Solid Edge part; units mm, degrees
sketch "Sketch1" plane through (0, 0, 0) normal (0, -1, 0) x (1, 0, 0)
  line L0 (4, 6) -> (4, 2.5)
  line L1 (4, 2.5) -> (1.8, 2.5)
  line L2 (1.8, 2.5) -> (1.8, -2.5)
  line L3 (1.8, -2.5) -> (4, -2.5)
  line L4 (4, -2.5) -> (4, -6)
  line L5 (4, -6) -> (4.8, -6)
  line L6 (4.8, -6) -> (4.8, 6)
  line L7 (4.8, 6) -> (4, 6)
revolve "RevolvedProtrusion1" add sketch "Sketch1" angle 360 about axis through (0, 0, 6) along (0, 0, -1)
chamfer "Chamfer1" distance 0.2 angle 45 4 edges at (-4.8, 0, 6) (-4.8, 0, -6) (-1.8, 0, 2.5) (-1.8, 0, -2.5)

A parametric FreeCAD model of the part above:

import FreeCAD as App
import Part
import Sketcher
from FreeCAD import Vector
Q = App.Units.Quantity


def edges_at(feature, points):
    """Names of the edges that pass closest to the given points."""
    edges = feature.Shape.Edges
    near = lambda p: min(range(len(edges)), key=lambda i: edges[i].distToShape(Part.Vertex(*p))[0])
    return sorted({f"Edge{near(p) + 1}" for p in points})


def add_polygon(sketch, points):
    """Adds a closed chain of lines whose ends are joined by coincident constraints."""
    first, n = sketch.GeometryCount, len(points)
    for a, b in zip(points, points[1:] + points[:1]):
        sketch.addGeometry(Part.LineSegment(App.Vector(*a, 0), App.Vector(*b, 0)), False)
    for i in range(n):
        sketch.addConstraint(Sketcher.Constraint("Coincident", first + i, 2, first + (i + 1) % n, 1))

doc = App.newDocument("Part")
params = doc.addObject("Spreadsheet::Sheet", "Params")
for row, (alias, value) in enumerate([
    ("sketch1_height", "5 mm"),
    ("sketch1_height2", "12 mm"),
    ("sketch1_width", "0.8 mm"),
    ("sketch1_width2", "2.2 mm"),
    ("revolution_angle", "360 deg"),
    ("chamfer_size", "0.2 mm"),
], start=1):
    params.set(f"A{row}", alias)
    params.set(f"B{row}", "=" + value)
    params.setAlias(f"B{row}", alias)

body = doc.addObject("PartDesign::Body", "Body")

# Sketch on XZ plane
sketch1 = doc.addObject("Sketcher::SketchObject", "Sketch")
body.addObject(sketch1)
sketch1.AttachmentSupport = (doc.XZ_Plane, [""])
sketch1.MapMode = "FlatFace"
add_polygon(sketch1, [(4.8, 6), (4, 6), (4, 2.5), (1.8, 2.5), (1.8, -2.5), (4, -2.5), (4, -6), (4.8, -6)])  # lines 0-7
sketch1.addConstraint(Sketcher.Constraint("Horizontal", 0))
sketch1.addConstraint(Sketcher.Constraint("Vertical", 1))
sketch1.addConstraint(Sketcher.Constraint("Horizontal", 2))
sketch1.addConstraint(Sketcher.Constraint("Vertical", 3))
sketch1.addConstraint(Sketcher.Constraint("Horizontal", 4))
sketch1.addConstraint(Sketcher.Constraint("Vertical", 5))
sketch1.addConstraint(Sketcher.Constraint("Horizontal", 6))
sketch1.addConstraint(Sketcher.Constraint("Vertical", 7))
sketch1.addConstraint(Sketcher.Constraint("Symmetric", 1, 2, 4, 2, -1))
sketch1.addConstraint(Sketcher.Constraint("Equal", 1, 5))
sketch1.addConstraint(Sketcher.Constraint("DistanceY", 3, 2, 3, 1, Q("5 mm")))
sketch1.addConstraint(Sketcher.Constraint("DistanceY", 7, 1, 7, 2, Q("12 mm")))
sketch1.addConstraint(Sketcher.Constraint("DistanceX", 0, 2, 0, 1, Q("0.8 mm")))
sketch1.addConstraint(Sketcher.Constraint("DistanceX", 2, 2, 2, 1, Q("2.2 mm")))
sketch1.addConstraint(Sketcher.Constraint("DistanceX", -1, 1, 0, 2, Q("4 mm")))
sketch1.setExpression("Constraints[18]", "Params.sketch1_height")
sketch1.setExpression("Constraints[19]", "Params.sketch1_height2")
sketch1.setExpression("Constraints[20]", "Params.sketch1_width")
sketch1.setExpression("Constraints[21]", "Params.sketch1_width2")
revolution = doc.addObject("PartDesign::Revolution", "Revolution")
body.addObject(revolution)
revolution.Profile = sketch1
revolution.ReferenceAxis = (sketch1, ["V_Axis"])
revolution.setExpression("Angle", "Params.revolution_angle")
doc.recompute()

chamfer = doc.addObject("PartDesign::Chamfer", "Chamfer")
body.addObject(chamfer)
chamfer.Base = (revolution, edges_at(revolution, [
    (-4.8, 0, 6),
    (-4.8, 0, -6),
    (-1.8, 0, 2.5),
    (-1.8, 0, -2.5),
]))
chamfer.setExpression("Size", "Params.chamfer_size")

doc.recompute()
